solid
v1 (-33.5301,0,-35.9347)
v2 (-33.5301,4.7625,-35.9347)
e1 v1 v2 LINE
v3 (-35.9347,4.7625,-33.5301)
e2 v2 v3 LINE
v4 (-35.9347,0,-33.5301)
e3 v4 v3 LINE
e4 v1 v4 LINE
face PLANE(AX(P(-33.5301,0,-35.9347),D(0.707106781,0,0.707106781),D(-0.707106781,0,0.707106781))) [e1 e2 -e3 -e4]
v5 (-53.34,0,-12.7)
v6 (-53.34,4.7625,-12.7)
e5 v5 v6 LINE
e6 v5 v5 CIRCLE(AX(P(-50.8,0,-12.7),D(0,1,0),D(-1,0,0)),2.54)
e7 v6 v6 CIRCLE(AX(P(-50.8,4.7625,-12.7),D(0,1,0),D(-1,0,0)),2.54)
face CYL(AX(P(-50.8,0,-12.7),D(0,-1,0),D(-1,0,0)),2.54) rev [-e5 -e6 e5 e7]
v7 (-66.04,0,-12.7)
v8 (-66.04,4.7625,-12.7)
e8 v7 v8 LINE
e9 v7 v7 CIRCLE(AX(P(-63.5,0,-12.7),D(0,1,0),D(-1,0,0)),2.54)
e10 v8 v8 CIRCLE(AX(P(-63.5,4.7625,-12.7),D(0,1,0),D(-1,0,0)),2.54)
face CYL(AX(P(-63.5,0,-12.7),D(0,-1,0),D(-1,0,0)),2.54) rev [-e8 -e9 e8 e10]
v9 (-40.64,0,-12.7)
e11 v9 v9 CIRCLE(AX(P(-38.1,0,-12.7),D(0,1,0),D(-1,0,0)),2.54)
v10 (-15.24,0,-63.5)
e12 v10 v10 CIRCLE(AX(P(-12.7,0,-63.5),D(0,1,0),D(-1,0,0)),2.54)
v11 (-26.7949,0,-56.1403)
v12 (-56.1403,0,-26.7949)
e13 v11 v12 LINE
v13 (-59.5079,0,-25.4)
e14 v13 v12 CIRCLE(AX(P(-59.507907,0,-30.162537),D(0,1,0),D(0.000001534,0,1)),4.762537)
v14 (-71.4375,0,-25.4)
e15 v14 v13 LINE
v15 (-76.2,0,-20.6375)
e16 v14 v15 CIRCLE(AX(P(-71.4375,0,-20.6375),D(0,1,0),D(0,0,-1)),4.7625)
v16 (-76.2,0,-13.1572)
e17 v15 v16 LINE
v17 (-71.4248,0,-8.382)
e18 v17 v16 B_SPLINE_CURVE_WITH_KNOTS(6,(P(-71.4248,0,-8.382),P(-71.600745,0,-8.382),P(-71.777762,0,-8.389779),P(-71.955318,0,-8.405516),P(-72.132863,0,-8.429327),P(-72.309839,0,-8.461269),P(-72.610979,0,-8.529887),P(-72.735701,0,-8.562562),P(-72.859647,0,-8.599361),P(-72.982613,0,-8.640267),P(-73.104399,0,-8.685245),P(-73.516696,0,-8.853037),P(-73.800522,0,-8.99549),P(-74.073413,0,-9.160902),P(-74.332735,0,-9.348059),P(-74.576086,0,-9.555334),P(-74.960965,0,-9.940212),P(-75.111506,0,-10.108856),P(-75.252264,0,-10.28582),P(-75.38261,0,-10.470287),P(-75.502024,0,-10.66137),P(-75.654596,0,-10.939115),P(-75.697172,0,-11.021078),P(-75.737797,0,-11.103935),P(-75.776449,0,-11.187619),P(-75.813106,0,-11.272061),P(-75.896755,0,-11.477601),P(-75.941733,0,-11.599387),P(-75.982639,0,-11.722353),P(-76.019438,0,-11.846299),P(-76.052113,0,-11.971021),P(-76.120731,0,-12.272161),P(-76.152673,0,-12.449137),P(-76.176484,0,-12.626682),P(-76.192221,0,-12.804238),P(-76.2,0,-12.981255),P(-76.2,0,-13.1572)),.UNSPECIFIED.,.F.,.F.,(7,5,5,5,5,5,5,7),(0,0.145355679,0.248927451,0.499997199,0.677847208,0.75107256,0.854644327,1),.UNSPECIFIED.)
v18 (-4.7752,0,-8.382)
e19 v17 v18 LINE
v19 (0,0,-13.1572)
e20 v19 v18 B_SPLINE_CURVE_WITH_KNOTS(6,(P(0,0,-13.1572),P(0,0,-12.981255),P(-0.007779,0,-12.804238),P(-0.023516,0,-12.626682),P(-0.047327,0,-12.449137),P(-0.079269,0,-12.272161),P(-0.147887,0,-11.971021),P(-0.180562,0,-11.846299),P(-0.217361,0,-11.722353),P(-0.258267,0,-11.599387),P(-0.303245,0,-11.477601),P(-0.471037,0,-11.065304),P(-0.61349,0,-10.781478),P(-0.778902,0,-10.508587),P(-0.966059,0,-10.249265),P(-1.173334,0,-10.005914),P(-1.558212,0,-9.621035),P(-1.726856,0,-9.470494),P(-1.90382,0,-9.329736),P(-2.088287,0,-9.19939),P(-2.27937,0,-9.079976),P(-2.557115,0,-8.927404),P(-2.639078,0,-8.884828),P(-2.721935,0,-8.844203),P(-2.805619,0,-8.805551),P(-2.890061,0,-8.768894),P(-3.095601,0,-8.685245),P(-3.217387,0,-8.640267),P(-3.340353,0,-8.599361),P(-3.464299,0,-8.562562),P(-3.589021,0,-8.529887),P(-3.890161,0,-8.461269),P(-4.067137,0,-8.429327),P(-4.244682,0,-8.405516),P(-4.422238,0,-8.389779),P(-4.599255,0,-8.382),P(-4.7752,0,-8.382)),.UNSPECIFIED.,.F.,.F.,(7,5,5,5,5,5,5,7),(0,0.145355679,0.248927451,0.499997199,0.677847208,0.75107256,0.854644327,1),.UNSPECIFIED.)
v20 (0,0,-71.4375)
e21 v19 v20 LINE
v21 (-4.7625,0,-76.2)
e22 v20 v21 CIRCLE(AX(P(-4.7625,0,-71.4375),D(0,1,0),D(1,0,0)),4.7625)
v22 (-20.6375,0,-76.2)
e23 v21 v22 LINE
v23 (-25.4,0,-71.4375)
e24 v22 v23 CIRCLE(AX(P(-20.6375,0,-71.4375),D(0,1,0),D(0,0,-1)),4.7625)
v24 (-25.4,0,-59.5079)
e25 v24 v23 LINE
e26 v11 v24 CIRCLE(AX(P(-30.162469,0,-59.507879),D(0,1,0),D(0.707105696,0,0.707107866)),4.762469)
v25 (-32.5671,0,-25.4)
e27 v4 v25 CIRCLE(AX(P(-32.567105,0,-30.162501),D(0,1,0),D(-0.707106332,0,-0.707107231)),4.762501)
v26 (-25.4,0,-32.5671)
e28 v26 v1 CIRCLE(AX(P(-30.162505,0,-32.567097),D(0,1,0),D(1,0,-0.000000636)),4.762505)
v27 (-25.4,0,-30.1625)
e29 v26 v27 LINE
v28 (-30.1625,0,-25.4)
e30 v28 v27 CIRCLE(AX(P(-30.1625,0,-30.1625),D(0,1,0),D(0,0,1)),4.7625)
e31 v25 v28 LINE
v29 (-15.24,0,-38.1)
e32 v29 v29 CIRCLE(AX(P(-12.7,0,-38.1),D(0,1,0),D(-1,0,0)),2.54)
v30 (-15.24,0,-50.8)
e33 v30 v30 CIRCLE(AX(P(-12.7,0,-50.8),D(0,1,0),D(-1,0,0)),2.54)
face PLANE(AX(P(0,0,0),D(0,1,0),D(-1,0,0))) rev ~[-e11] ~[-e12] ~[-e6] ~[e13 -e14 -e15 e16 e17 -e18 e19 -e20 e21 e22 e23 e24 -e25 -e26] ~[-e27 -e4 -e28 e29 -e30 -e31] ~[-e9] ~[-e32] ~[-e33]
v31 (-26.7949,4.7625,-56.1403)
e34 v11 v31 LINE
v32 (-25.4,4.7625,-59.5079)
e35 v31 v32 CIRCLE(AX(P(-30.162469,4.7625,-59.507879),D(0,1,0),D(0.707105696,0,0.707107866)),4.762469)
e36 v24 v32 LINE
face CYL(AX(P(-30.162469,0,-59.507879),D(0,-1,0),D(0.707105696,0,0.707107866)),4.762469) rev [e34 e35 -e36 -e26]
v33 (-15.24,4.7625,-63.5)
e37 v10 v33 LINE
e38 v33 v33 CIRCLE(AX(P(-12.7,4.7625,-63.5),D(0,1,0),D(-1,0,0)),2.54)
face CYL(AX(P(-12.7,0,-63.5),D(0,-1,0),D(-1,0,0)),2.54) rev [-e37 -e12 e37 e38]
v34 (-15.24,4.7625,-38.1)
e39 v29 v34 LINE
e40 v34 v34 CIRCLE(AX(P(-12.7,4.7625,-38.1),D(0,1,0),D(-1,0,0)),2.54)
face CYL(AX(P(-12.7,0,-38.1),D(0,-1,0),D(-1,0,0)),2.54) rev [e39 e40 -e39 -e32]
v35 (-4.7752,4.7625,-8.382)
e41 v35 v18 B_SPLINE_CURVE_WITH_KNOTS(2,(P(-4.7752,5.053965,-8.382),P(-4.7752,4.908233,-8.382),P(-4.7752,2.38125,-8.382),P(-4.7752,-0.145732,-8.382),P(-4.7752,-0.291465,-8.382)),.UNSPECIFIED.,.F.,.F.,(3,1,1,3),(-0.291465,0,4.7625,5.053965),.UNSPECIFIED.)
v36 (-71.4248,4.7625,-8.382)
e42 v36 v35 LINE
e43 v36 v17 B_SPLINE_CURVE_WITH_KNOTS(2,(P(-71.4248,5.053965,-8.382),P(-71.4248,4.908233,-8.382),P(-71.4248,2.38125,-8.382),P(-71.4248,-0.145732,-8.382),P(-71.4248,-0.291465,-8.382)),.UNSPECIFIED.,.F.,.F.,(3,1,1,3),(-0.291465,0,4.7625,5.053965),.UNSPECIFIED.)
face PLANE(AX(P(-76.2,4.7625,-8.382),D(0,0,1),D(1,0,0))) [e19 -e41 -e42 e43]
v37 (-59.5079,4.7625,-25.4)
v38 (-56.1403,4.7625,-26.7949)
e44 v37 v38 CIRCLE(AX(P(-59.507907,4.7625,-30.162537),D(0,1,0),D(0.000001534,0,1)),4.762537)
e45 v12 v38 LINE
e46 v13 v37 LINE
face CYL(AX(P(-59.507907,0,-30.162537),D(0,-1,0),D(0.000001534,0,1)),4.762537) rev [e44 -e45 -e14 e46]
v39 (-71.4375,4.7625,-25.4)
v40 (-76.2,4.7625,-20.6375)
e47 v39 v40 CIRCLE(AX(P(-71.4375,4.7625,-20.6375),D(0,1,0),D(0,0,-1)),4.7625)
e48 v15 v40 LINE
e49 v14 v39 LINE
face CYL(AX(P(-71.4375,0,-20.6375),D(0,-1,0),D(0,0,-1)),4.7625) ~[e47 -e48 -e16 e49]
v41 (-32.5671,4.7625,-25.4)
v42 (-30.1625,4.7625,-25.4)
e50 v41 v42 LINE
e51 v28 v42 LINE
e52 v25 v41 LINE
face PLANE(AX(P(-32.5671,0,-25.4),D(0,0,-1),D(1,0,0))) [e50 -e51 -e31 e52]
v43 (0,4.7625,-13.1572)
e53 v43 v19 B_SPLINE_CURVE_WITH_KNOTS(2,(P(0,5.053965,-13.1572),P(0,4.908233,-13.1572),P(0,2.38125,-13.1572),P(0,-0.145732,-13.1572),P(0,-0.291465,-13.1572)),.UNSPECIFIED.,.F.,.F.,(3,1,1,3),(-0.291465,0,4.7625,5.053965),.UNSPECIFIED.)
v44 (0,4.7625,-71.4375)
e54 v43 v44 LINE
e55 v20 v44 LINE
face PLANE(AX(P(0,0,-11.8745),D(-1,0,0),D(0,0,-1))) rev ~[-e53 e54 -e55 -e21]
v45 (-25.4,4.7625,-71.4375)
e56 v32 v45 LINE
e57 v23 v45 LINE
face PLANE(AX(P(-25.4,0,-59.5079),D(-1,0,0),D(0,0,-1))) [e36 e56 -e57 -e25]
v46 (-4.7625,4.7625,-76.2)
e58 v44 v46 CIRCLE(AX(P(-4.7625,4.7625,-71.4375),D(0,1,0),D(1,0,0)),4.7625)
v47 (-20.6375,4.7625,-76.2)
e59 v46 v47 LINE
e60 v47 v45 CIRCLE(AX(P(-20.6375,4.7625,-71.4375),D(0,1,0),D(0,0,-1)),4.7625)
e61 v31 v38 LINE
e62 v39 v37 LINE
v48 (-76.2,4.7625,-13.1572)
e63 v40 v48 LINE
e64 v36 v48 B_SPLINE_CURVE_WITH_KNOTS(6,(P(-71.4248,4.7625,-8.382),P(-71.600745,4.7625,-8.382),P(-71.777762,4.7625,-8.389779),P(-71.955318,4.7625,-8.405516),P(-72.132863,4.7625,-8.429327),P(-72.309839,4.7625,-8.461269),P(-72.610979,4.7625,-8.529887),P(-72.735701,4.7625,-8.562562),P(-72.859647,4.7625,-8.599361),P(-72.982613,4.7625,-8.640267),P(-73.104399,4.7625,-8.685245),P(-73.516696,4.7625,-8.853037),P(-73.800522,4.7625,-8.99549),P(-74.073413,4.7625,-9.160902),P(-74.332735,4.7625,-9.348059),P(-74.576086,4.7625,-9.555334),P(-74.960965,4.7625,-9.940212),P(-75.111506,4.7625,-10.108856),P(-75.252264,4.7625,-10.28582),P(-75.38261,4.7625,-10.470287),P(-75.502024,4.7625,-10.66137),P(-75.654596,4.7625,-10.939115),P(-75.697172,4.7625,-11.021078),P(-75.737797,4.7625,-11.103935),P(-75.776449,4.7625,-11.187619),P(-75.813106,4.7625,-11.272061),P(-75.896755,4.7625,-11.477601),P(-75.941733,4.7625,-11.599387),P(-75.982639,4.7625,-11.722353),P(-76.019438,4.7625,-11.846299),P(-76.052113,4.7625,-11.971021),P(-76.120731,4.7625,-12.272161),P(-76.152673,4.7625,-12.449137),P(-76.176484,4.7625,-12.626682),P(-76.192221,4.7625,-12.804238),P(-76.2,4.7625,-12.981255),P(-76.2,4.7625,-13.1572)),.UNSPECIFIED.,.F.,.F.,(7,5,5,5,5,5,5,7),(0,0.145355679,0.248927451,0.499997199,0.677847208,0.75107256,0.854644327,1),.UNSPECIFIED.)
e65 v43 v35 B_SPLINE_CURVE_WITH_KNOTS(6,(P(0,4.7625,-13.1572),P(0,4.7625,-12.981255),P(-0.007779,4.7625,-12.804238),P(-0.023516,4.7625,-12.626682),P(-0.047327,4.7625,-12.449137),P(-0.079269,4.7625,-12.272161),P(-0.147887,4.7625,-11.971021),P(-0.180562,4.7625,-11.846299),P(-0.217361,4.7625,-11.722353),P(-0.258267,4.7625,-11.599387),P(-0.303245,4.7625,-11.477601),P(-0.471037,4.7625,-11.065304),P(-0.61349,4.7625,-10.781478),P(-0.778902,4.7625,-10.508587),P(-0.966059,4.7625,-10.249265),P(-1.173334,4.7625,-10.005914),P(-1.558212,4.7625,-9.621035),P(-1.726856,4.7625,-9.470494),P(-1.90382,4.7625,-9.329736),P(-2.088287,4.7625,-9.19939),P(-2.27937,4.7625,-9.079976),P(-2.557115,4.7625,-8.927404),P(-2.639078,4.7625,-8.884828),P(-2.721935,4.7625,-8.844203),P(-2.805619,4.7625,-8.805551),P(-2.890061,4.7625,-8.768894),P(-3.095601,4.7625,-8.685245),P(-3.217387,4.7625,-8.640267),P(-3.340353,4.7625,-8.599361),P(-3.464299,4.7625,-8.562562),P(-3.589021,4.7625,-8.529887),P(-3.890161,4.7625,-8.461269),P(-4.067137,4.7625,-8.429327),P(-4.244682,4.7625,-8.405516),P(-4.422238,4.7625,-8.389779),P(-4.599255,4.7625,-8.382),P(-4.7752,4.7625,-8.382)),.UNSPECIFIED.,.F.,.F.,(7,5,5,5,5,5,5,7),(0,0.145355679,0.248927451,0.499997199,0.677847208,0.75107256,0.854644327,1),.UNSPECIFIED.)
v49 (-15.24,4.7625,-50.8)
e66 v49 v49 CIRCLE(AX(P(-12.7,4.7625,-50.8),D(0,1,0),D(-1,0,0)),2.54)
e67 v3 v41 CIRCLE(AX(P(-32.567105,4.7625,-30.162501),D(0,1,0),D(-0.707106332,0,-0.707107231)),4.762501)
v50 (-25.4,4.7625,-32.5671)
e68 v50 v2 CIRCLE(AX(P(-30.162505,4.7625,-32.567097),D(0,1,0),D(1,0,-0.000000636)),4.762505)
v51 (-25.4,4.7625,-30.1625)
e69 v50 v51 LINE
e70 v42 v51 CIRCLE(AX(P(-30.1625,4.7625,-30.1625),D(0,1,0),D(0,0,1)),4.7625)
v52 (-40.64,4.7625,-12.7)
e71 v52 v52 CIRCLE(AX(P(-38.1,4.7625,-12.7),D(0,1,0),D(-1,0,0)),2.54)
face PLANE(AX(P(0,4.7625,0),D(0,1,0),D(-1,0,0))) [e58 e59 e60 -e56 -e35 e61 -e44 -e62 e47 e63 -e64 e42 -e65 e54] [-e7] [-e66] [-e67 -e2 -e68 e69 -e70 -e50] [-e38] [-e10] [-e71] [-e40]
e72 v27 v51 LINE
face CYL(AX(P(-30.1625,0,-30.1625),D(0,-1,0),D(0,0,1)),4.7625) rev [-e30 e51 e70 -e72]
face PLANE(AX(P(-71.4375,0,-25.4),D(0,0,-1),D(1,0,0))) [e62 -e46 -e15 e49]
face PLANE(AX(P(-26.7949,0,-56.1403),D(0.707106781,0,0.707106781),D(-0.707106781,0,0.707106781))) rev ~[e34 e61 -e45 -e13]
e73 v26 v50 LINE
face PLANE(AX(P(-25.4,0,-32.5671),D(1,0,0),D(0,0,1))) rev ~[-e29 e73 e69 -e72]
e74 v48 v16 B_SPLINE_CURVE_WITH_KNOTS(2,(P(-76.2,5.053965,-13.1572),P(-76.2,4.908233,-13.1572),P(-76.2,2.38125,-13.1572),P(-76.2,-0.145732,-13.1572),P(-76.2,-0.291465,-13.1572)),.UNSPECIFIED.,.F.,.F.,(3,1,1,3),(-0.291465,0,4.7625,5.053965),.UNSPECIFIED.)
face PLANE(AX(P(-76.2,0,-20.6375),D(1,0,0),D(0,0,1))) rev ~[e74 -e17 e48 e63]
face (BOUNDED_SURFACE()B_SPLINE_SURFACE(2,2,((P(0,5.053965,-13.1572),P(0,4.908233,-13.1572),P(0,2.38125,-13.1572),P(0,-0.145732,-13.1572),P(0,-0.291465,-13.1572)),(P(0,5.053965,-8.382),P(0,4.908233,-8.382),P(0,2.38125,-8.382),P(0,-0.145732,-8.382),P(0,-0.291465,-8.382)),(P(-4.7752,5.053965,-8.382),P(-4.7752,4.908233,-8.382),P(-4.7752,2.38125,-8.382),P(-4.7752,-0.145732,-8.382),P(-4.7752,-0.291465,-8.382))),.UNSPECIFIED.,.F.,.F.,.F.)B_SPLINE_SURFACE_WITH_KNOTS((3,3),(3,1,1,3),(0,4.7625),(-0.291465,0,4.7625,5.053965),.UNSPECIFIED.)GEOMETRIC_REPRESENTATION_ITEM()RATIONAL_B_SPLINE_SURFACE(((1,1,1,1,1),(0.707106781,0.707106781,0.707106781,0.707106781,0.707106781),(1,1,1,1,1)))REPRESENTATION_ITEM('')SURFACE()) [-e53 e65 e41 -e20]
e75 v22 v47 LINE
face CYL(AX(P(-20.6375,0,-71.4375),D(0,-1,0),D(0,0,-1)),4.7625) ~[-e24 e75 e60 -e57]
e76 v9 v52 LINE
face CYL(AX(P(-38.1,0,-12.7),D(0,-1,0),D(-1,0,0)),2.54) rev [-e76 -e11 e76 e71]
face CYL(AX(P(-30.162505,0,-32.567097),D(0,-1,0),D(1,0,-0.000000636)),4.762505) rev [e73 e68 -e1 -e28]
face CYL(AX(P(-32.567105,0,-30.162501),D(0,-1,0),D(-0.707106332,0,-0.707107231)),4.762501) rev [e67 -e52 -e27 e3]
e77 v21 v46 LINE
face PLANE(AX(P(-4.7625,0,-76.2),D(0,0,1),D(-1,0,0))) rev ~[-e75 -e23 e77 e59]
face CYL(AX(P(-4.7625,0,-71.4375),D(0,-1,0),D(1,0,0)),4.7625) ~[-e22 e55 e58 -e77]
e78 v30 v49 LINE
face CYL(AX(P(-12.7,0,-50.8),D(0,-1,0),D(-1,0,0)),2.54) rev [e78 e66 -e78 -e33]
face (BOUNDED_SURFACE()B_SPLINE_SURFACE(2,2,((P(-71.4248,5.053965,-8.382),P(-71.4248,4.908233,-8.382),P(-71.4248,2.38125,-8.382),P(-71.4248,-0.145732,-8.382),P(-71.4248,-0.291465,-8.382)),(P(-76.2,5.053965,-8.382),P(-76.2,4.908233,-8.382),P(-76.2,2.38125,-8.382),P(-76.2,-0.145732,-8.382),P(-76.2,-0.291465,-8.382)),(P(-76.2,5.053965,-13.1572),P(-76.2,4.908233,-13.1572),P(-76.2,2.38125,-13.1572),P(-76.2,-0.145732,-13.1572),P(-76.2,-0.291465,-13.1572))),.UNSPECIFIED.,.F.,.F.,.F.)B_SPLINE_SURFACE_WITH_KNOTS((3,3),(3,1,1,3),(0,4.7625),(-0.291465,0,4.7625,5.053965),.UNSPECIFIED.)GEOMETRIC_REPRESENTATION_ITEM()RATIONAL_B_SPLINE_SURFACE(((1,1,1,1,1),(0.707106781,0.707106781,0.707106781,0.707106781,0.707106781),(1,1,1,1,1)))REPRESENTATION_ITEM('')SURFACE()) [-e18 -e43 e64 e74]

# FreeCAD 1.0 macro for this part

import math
import FreeCAD as App
import Part
import Sketcher
from FreeCAD import Vector
Q = App.Units.Quantity


def edges_at(feature, points):
    """Names of the edges that pass closest to the given points."""
    edges = feature.Shape.Edges
    near = lambda p: min(range(len(edges)), key=lambda i: edges[i].distToShape(Part.Vertex(*p))[0])
    return sorted({f"Edge{near(p) + 1}" for p in points})


def add_polygon(sketch, points):
    """Adds a closed chain of lines whose ends are joined by coincident constraints."""
    first, n = sketch.GeometryCount, len(points)
    for a, b in zip(points, points[1:] + points[:1]):
        sketch.addGeometry(Part.LineSegment(App.Vector(*a, 0), App.Vector(*b, 0)), False)
    for i in range(n):
        sketch.addConstraint(Sketcher.Constraint("Coincident", first + i, 2, first + (i + 1) % n, 1))

doc = App.newDocument("Part")
body = doc.addObject("PartDesign::Body", "Body")

# Sketch on XZ plane
sketch1 = body.newObject("Sketcher::SketchObject", "Sketch")
sketch1.AttachmentSupport = (doc.getObject("XZ_Plane"), [""])
sketch1.MapMode = "FlatFace"
sketch1.addGeometry([
    Part.ArcOfCircle(Part.Circle(Vector(-4.8, -11.9, 0), Vector(0, 0, 1), 4.8), math.radians(0), math.radians(90)),  # 0
    Part.LineSegment(Vector(0, -11.9, 0), Vector(0, -71.4, 0)),  # 1
    Part.ArcOfCircle(Part.Circle(Vector(-4.8, -71.4, 0), Vector(0, 0, 1), 4.8), math.radians(-90), math.radians(0)),  # 2
    Part.LineSegment(Vector(-4.8, -76.2, 0), Vector(-20.6, -76.2, 0)),  # 3
    Part.ArcOfCircle(Part.Circle(Vector(-20.6, -71.4, 0), Vector(0, 0, 1), 4.8), math.radians(180), math.radians(270)),  # 4
    Part.LineSegment(Vector(-25.4, -71.4, 0), Vector(-25.4, -59.5, 0)),  # 5
    Part.ArcOfCircle(Part.Circle(Vector(-30.2, -59.5, 0), Vector(0, 0, 1), 4.8), math.radians(0), math.radians(45)),  # 6
    Part.LineSegment(Vector(-26.8, -56.1, 0), Vector(-56.1, -26.8, 0)),  # 7
    Part.ArcOfCircle(Part.Circle(Vector(-59.5, -30.2, 0), Vector(0, 0, 1), 4.8), math.radians(45), math.radians(90)),  # 8
    Part.LineSegment(Vector(-59.5, -25.4, 0), Vector(-71.4, -25.4, 0)),  # 9
    Part.ArcOfCircle(Part.Circle(Vector(-71.4, -20.6, 0), Vector(0, 0, 1), 4.8), math.radians(180), math.radians(270)),  # 10
    Part.LineSegment(Vector(-76.2, -20.6, 0), Vector(-76.2, -11.9, 0)),  # 11
    Part.ArcOfCircle(Part.Circle(Vector(-71.4, -11.9, 0), Vector(0, 0, 1), 4.8), math.radians(90), math.radians(180)),  # 12
    Part.LineSegment(Vector(-71.4, -7.1, 0), Vector(-4.8, -7.1, 0)),  # 13
    Part.Circle(Vector(-12.7, -63.5, 0), Vector(0, 0, 1), 2.5),  # 14
    Part.Circle(Vector(-12.7, -50.8, 0), Vector(0, 0, 1), 2.5),  # 15
    Part.Circle(Vector(-12.7, -38.1, 0), Vector(0, 0, 1), 2.5),  # 16
    Part.LineSegment(Vector(-35.9, -33.5, 0), Vector(-33.5, -35.9, 0)),  # 17
    Part.ArcOfCircle(Part.Circle(Vector(-30.2, -32.6, 0), Vector(0, 0, 1), 4.8), math.radians(-135), math.radians(0)),  # 18
    Part.LineSegment(Vector(-25.4, -32.6, 0), Vector(-25.4, -30.2, 0)),  # 19
    Part.ArcOfCircle(Part.Circle(Vector(-30.2, -30.2, 0), Vector(0, 0, 1), 4.8), math.radians(0), math.radians(90)),  # 20
    Part.LineSegment(Vector(-30.2, -25.4, 0), Vector(-32.6, -25.4, 0)),  # 21
    Part.ArcOfCircle(Part.Circle(Vector(-32.6, -30.2, 0), Vector(0, 0, 1), 4.8), math.radians(90), math.radians(225)),  # 22
    Part.Circle(Vector(-38.1, -12.7, 0), Vector(0, 0, 1), 2.5),  # 23
    Part.Circle(Vector(-50.8, -12.7, 0), Vector(0, 0, 1), 2.5),  # 24
    Part.Circle(Vector(-63.5, -12.7, 0), Vector(0, 0, 1), 2.5),  # 25
], False)
sketch1.addConstraint([
    Sketcher.Constraint("Tangent", 0, 1, 1, 1),
    Sketcher.Constraint("Tangent", 1, 2, 2, 2),
    Sketcher.Constraint("Tangent", 2, 1, 3, 1),
    Sketcher.Constraint("Tangent", 3, 2, 4, 2),
    Sketcher.Constraint("Tangent", 4, 1, 5, 1),
    Sketcher.Constraint("Tangent", 5, 2, 6, 1),
    Sketcher.Constraint("Tangent", 6, 2, 7, 1),
    Sketcher.Constraint("Tangent", 7, 2, 8, 1),
    Sketcher.Constraint("Tangent", 8, 2, 9, 1),
    Sketcher.Constraint("Tangent", 9, 2, 10, 2),
    Sketcher.Constraint("Tangent", 10, 1, 11, 1),
    Sketcher.Constraint("Tangent", 11, 2, 12, 2),
    Sketcher.Constraint("Tangent", 12, 1, 13, 1),
    Sketcher.Constraint("Tangent", 13, 2, 0, 2),
    Sketcher.Constraint("Tangent", 17, 2, 18, 1),
    Sketcher.Constraint("Tangent", 18, 2, 19, 1),
    Sketcher.Constraint("Tangent", 19, 2, 20, 1),
    Sketcher.Constraint("Tangent", 20, 2, 21, 1),
    Sketcher.Constraint("Tangent", 21, 2, 22, 1),
    Sketcher.Constraint("Tangent", 22, 2, 17, 1),
    Sketcher.Constraint("Vertical", 1),
    Sketcher.Constraint("Horizontal", 3),
    Sketcher.Constraint("Vertical", 5),
    Sketcher.Constraint("Horizontal", 9),
    Sketcher.Constraint("Vertical", 11),
    Sketcher.Constraint("Horizontal", 13),
    Sketcher.Constraint("Vertical", 19),
    Sketcher.Constraint("Horizontal", 21),
    Sketcher.Constraint("Equal", 0, 2),
    Sketcher.Constraint("Equal", 2, 4),
    Sketcher.Constraint("Equal", 4, 6),
    Sketcher.Constraint("Equal", 6, 8),
    Sketcher.Constraint("Equal", 8, 10),
    Sketcher.Constraint("Equal", 10, 12),
    Sketcher.Constraint("Equal", 14, 15),
    Sketcher.Constraint("Equal", 15, 16),
    Sketcher.Constraint("Equal", 12, 18),
    Sketcher.Constraint("Equal", 18, 20),
    Sketcher.Constraint("Equal", 20, 22),
    Sketcher.Constraint("Equal", 16, 23),
    Sketcher.Constraint("Equal", 23, 24),
    Sketcher.Constraint("Equal", 24, 25),
    Sketcher.Constraint("PointOnObject", 0, 1, -2),
    Sketcher.Constraint("Parallel", 7, 17),
    Sketcher.Constraint("Horizontal", 8, 3, 20, 3),
    Sketcher.Constraint("Horizontal", 23, 3, 24, 3),
    Sketcher.Constraint("Horizontal", 24, 3, 25, 3),
    Sketcher.Constraint("Vertical", 14, 3, 15, 3),
    Sketcher.Constraint("Vertical", 15, 3, 16, 3),
    Sketcher.Constraint("Vertical", 6, 3, 18, 3),
    Sketcher.Constraint("Equal", 9, 5),
    Sketcher.Constraint("Equal", 21, 19),
    Sketcher.Constraint("Diameter", 14, Q("0.2 in")),
    Sketcher.Constraint("DistanceY", 2, 1, -1, 1, Q("3 in")),
    Sketcher.Constraint("DistanceX", 4, 1, -1, 1, Q("1 in")),
    Sketcher.Constraint("DistanceY", 8, 2, -1, 1, Q("1 in")),
    Sketcher.Constraint("Radius", 0, Q("0.1875 in")),
    Sketcher.Constraint("DistanceY", 14, 3, 16, 3, Q("1 in")),
    Sketcher.Constraint("DistanceX", 25, 3, 23, 3, Q("1 in")),
    Sketcher.Constraint("DistanceY", 2, 1, 15, 3, Q("1 in")),
    Sketcher.Constraint("DistanceX", 14, 3, -1, 1, Q("0.5 in")),
    Sketcher.Constraint("DistanceY", 16, 3, -1, 1, Q("1.5 in")),
    Sketcher.Constraint("DistanceX", 23, 3, -1, 1, Q("1.5 in")),
    Sketcher.Constraint("DistanceY", 23, 3, -1, 1, Q("0.5 in")),
    Sketcher.Constraint("DistanceX", 24, 3, 23, 3, Q("0.5 in")),
    Sketcher.Constraint("DistanceY", 8, 3, 0, 3, Q("0.72 in")),
    Sketcher.Constraint("DistanceX", 9, 2, 9, 1, Q("11.9296 mm")),
    Sketcher.Constraint("DistanceX", 21, 2, 21, 1, Q("2.4046 mm")),
])
pad1 = body.newObject("PartDesign::Pad", "Pad")
pad1.Profile = sketch1
pad1.Length = Q("0.1875 in")
pad1.Reversed = True

# Sketch on XZ plane
sketch2 = body.newObject("Sketcher::SketchObject", "Sketch001")
sketch2.AttachmentSupport = (doc.getObject("XZ_Plane"), [""])
sketch2.MapMode = "FlatFace"
sketch2.AttachmentOffset = App.Placement(Vector(0, 0, -0.1875 * 25.4), App.Rotation())
add_polygon(sketch2, [(-76.2, -7.1), (0, -7.1), (0, -8.4), (-76.2, -8.4)])  # lines 0-3
sketch2.addConstraint([
    Sketcher.Constraint("Horizontal", 0),
    Sketcher.Constraint("Vertical", 1),
    Sketcher.Constraint("Horizontal", 2),
    Sketcher.Constraint("Vertical", 3),
    Sketcher.Constraint("PointOnObject", 0, 2, -2),
    Sketcher.Constraint("DistanceY", 1, 2, 1, 1, Q("0.05 in")),
    Sketcher.Constraint("DistanceX", 0, 1, 0, 2, Q("3 in")),
    Sketcher.Constraint("DistanceY", 0, 2, -1, 1, Q("0.28 in")),
])
pocket1 = body.newObject("PartDesign::Pocket", "Pocket")
pocket1.Profile = sketch2
pocket1.Type = "ThroughAll"
pocket1.Reversed = True
doc.recompute()

fillet = body.newObject("PartDesign::Fillet", "Fillet")
fillet.Base = (pocket1, edges_at(pocket1, [(-74.675, 2.381, -8.382), (-1.525, 2.381, -8.382)]))
fillet.Radius = Q("0.188 in")

doc.recompute()
